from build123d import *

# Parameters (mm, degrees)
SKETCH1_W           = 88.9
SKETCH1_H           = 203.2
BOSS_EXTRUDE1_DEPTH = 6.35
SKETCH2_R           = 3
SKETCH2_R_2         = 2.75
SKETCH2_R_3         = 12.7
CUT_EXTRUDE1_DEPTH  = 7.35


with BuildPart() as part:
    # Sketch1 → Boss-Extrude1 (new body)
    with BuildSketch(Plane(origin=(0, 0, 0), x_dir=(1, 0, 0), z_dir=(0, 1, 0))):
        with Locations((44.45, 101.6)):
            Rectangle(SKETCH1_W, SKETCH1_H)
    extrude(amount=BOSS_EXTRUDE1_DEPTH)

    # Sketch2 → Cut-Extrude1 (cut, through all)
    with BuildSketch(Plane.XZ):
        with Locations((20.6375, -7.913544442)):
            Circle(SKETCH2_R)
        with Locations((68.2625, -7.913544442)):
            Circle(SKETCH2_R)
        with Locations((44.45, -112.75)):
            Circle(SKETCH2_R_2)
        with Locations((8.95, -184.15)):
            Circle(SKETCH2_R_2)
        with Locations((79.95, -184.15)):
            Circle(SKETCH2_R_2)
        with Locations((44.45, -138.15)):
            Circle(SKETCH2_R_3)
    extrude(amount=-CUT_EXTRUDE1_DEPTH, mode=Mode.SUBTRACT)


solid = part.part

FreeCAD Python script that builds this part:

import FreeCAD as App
import Part
import Sketcher
Q = App.Units.Quantity


def add_polygon(sketch, points):
    """Adds a closed chain of lines whose ends are joined by coincident constraints."""
    first, n = sketch.GeometryCount, len(points)
    for a, b in zip(points, points[1:] + points[:1]):
        sketch.addGeometry(Part.LineSegment(App.Vector(*a, 0), App.Vector(*b, 0)), False)
    for i in range(n):
        sketch.addConstraint(Sketcher.Constraint("Coincident", first + i, 2, first + (i + 1) % n, 1))

doc = App.newDocument("Part")
params = doc.addObject("Spreadsheet::Sheet", "Params")
for row, (alias, value) in enumerate([
    ("sketch1_height", "8 in"),
    ("sketch1_width", "3.5 in"),
    ("pad1_length", "0.25 in"),
    ("sketch2_diameter", "1 in"),
], start=1):
    params.set(f"A{row}", alias)
    params.set(f"B{row}", "=" + value)
    params.setAlias(f"B{row}", alias)

body = doc.addObject("PartDesign::Body", "Body")

# Sketch on XZ plane
sketch1 = body.newObject("Sketcher::SketchObject", "Sketch")
sketch1.AttachmentSupport = (doc.getObject("XZ_Plane"), [""])
sketch1.MapMode = "FlatFace"
add_polygon(sketch1, [(0, -203), (0, 0), (89, 0), (89, -203)])  # lines 0-3
sketch1.addConstraint(Sketcher.Constraint("Vertical", 0))
sketch1.addConstraint(Sketcher.Constraint("Horizontal", 1))
sketch1.addConstraint(Sketcher.Constraint("Vertical", 2))
sketch1.addConstraint(Sketcher.Constraint("Horizontal", 3))
sketch1.addConstraint(Sketcher.Constraint("Coincident", 0, 2, -1, 1))
sketch1.addConstraint(Sketcher.Constraint("DistanceY", 0, 1, 0, 2, Q("8 in")))
sketch1.addConstraint(Sketcher.Constraint("DistanceX", 1, 1, 1, 2, Q("3.5 in")))
sketch1.setExpression("Constraints[9]", "Params.sketch1_height")
sketch1.setExpression("Constraints[10]", "Params.sketch1_width")
pad1 = body.newObject("PartDesign::Pad", "Pad")
pad1.Profile = sketch1
pad1.setExpression("Length", "Params.pad1_length")
pad1.Reversed = True

# Sketch on XZ plane
sketch2 = body.newObject("Sketcher::SketchObject", "Sketch001")
sketch2.AttachmentSupport = (doc.getObject("XZ_Plane"), [""])
sketch2.MapMode = "FlatFace"
sketch2.addGeometry(Part.Circle(App.Vector(20.6, -7.9, 0), App.Vector(0, 0, 1), 3), False)
sketch2.addGeometry(Part.Circle(App.Vector(68.3, -7.9, 0), App.Vector(0, 0, 1), 3), False)
sketch2.addGeometry(Part.Circle(App.Vector(44.5, -112.8, 0), App.Vector(0, 0, 1), 2.8), False)
sketch2.addGeometry(Part.Circle(App.Vector(8.9, -184.2, 0), App.Vector(0, 0, 1), 2.8), False)
sketch2.addGeometry(Part.Circle(App.Vector(80, -184.2, 0), App.Vector(0, 0, 1), 2.8), False)
sketch2.addGeometry(Part.Circle(App.Vector(44.5, -138.2, 0), App.Vector(0, 0, 1), 12.7), False)
sketch2.addConstraint(Sketcher.Constraint("Equal", 0, 1))
sketch2.addConstraint(Sketcher.Constraint("Equal", 2, 3))
sketch2.addConstraint(Sketcher.Constraint("Equal", 3, 4))
sketch2.addConstraint(Sketcher.Constraint("Horizontal", 0, 3, 1, 3))
sketch2.addConstraint(Sketcher.Constraint("Horizontal", 3, 3, 4, 3))
sketch2.addConstraint(Sketcher.Constraint("Vertical", 2, 3, 5, 3))
sketch2.addConstraint(Sketcher.Constraint("Diameter", 5, Q("1 in")))
sketch2.addConstraint(Sketcher.Constraint("DistanceY", 5, 3, 2, 3, Q("1 in")))
sketch2.addConstraint(Sketcher.Constraint("Diameter", 0, 6.0))
sketch2.addConstraint(Sketcher.Constraint("Diameter", 2, 5.5))
sketch2.addConstraint(Sketcher.Constraint("DistanceX", -1, 1, 2, 3, Q("1.75 in")))
sketch2.addConstraint(Sketcher.Constraint("DistanceY", 3, 3, -1, 1, Q("7.25 in")))
sketch2.addConstraint(Sketcher.Constraint("DistanceX", -1, 1, 0, 3, Q("0.8125 in")))
sketch2.addConstraint(Sketcher.Constraint("DistanceX", -1, 1, 1, 3, Q("2.6875 in")))
sketch2.addConstraint(Sketcher.Constraint("DistanceY", 2, 3, -1, 1, 112.75))
sketch2.addConstraint(Sketcher.Constraint("DistanceX", -1, 1, 3, 3, 8.95))
sketch2.addConstraint(Sketcher.Constraint("DistanceX", -1, 1, 4, 3, 79.95))
sketch2.addConstraint(Sketcher.Constraint("DistanceY", 0, 3, -1, 1, 7.913544))
sketch2.setExpression("Constraints[6]", "Params.sketch2_diameter")
pocket1 = body.newObject("PartDesign::Pocket", "Pocket")
pocket1.Profile = sketch2
pocket1.Type = "ThroughAll"

doc.recompute()
